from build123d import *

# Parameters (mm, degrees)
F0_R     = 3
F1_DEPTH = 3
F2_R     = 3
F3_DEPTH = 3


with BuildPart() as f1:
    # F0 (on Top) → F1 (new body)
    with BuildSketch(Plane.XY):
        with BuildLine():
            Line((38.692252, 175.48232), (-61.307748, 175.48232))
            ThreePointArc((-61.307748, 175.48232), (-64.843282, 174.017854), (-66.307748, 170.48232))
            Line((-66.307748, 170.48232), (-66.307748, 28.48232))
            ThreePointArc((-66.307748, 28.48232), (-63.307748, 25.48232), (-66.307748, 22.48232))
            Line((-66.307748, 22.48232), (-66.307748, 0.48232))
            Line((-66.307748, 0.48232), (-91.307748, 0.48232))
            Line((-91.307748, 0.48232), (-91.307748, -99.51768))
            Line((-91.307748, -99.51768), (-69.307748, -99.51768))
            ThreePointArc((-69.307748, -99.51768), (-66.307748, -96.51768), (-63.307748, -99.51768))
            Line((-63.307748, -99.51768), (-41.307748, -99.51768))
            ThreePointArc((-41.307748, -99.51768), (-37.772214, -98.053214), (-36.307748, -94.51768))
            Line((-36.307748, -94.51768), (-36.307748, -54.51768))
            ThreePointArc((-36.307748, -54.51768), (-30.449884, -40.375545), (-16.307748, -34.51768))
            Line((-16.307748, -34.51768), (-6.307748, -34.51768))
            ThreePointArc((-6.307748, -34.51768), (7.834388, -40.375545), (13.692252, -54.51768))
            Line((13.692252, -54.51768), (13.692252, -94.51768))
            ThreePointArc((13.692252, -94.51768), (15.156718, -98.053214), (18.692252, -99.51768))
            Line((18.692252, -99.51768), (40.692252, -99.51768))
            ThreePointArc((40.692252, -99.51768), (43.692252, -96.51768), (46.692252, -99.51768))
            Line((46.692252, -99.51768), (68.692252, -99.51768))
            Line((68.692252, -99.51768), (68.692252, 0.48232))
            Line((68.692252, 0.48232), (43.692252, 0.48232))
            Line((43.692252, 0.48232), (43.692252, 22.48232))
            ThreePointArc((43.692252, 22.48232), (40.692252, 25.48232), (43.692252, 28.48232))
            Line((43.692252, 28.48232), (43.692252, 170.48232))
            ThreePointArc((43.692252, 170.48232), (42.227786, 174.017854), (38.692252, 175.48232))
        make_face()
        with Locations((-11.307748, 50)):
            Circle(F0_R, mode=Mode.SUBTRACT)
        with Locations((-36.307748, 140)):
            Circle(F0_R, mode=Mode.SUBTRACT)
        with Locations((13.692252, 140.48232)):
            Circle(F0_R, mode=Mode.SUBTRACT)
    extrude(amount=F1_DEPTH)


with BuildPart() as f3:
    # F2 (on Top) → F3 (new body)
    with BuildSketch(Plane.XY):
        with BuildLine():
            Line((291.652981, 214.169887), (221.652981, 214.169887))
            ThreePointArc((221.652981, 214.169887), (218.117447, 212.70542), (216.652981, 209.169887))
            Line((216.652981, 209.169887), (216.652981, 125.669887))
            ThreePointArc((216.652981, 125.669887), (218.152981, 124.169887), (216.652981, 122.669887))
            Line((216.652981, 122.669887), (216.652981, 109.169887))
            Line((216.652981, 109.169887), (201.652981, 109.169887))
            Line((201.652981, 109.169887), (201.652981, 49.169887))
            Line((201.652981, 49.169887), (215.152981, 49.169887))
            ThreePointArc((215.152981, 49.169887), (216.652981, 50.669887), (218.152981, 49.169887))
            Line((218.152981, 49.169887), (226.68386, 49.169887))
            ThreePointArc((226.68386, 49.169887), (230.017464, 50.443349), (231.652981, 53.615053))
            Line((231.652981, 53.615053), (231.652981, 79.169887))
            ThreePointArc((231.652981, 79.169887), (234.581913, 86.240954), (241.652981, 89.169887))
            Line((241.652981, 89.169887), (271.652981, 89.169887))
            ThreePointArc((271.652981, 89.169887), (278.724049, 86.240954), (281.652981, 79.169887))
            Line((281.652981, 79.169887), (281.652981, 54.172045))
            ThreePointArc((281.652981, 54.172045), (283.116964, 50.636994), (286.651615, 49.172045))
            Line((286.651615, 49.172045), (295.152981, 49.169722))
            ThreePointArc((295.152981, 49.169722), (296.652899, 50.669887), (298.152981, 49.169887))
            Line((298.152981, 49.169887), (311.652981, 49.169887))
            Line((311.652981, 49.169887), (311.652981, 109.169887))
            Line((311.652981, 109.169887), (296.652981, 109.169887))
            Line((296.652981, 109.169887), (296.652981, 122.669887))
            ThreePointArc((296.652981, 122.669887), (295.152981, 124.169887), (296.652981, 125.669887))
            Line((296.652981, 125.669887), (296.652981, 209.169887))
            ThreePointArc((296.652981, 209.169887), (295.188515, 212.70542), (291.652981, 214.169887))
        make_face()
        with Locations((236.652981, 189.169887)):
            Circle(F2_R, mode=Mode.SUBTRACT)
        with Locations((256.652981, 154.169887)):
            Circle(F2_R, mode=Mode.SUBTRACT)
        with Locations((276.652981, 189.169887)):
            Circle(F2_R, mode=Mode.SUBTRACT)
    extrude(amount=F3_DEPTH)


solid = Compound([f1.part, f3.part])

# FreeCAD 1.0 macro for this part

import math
import FreeCAD as App
import Part
import Sketcher

doc = App.newDocument("Part")
body = doc.addObject("PartDesign::Body", "Body")

# Sketch on XY plane
sketch1 = doc.addObject("Sketcher::SketchObject", "Sketch")
body.addObject(sketch1)
sketch1.AttachmentSupport = (doc.XY_Plane, [""])
sketch1.MapMode = "FlatFace"
sketch1.addGeometry([
    Part.LineSegment(App.Vector(38.7, 175.5, 0), App.Vector(-61.3, 175.5, 0)),  # 0
    Part.ArcOfCircle(Part.Circle(App.Vector(-61.3, 170.5, 0), App.Vector(0, 0, 1), 5), math.radians(90), math.radians(180)),  # 1
    Part.LineSegment(App.Vector(-66.3, 170.5, 0), App.Vector(-66.3, 28.5, 0)),  # 2
    Part.ArcOfCircle(Part.Circle(App.Vector(-66.3, 25.5, 0), App.Vector(0, 0, 1), 3), math.radians(-90), math.radians(90)),  # 3
    Part.LineSegment(App.Vector(-66.3, 22.5, 0), App.Vector(-66.3, 0.5, 0)),  # 4
    Part.LineSegment(App.Vector(-66.3, 0.5, 0), App.Vector(-91.3, 0.5, 0)),  # 5
    Part.LineSegment(App.Vector(-91.3, 0.5, 0), App.Vector(-91.3, -99.5, 0)),  # 6
    Part.LineSegment(App.Vector(-91.3, -99.5, 0), App.Vector(-69.3, -99.5, 0)),  # 7
    Part.ArcOfCircle(Part.Circle(App.Vector(-66.3, -99.5, 0), App.Vector(0, 0, 1), 3), math.radians(0), math.radians(180)),  # 8
    Part.LineSegment(App.Vector(-63.3, -99.5, 0), App.Vector(-41.3, -99.5, 0)),  # 9
    Part.ArcOfCircle(Part.Circle(App.Vector(-41.3, -94.5, 0), App.Vector(0, 0, 1), 5), math.radians(-90), math.radians(0)),  # 10
    Part.LineSegment(App.Vector(-36.3, -94.5, 0), App.Vector(-36.3, -54.5, 0)),  # 11
    Part.ArcOfCircle(Part.Circle(App.Vector(-16.3, -54.5, 0), App.Vector(0, 0, 1), 20), math.radians(90), math.radians(180)),  # 12
    Part.LineSegment(App.Vector(-16.3, -34.5, 0), App.Vector(-6.3, -34.5, 0)),  # 13
    Part.ArcOfCircle(Part.Circle(App.Vector(-6.3, -54.5, 0), App.Vector(0, 0, 1), 20), math.radians(0), math.radians(90)),  # 14
    Part.LineSegment(App.Vector(13.7, -54.5, 0), App.Vector(13.7, -94.5, 0)),  # 15
    Part.ArcOfCircle(Part.Circle(App.Vector(18.7, -94.5, 0), App.Vector(0, 0, 1), 5), math.radians(180), math.radians(270)),  # 16
    Part.LineSegment(App.Vector(18.7, -99.5, 0), App.Vector(40.7, -99.5, 0)),  # 17
    Part.ArcOfCircle(Part.Circle(App.Vector(43.7, -99.5, 0), App.Vector(0, 0, 1), 3), math.radians(0), math.radians(180)),  # 18
    Part.LineSegment(App.Vector(46.7, -99.5, 0), App.Vector(68.7, -99.5, 0)),  # 19
    Part.LineSegment(App.Vector(68.7, -99.5, 0), App.Vector(68.7, 0.5, 0)),  # 20
    Part.LineSegment(App.Vector(68.7, 0.5, 0), App.Vector(43.7, 0.5, 0)),  # 21
    Part.LineSegment(App.Vector(43.7, 0.5, 0), App.Vector(43.7, 22.5, 0)),  # 22
    Part.ArcOfCircle(Part.Circle(App.Vector(43.7, 25.5, 0), App.Vector(0, 0, 1), 3), math.radians(90), math.radians(270)),  # 23
    Part.LineSegment(App.Vector(43.7, 28.5, 0), App.Vector(43.7, 170.5, 0)),  # 24
    Part.ArcOfCircle(Part.Circle(App.Vector(38.7, 170.5, 0), App.Vector(0, 0, 1), 5), math.radians(0), math.radians(90)),  # 25
    Part.Circle(App.Vector(-11.3, 50, 0), App.Vector(0, 0, 1), 3),  # 26
    Part.Circle(App.Vector(-36.3, 140, 0), App.Vector(0, 0, 1), 3),  # 27
    Part.Circle(App.Vector(13.7, 140.5, 0), App.Vector(0, 0, 1), 3),  # 28
], False)
sketch1.addConstraint([
    Sketcher.Constraint("Tangent", 0, 2, 1, 1),
    Sketcher.Constraint("Tangent", 1, 2, 2, 1),
    Sketcher.Constraint("Coincident", 2, 2, 3, 2),
    Sketcher.Constraint("Coincident", 3, 1, 4, 1),
    Sketcher.Constraint("Coincident", 4, 2, 5, 1),
    Sketcher.Constraint("Coincident", 5, 2, 6, 1),
    Sketcher.Constraint("Coincident", 6, 2, 7, 1),
    Sketcher.Constraint("Coincident", 7, 2, 8, 2),
    Sketcher.Constraint("Coincident", 8, 1, 9, 1),
    Sketcher.Constraint("Tangent", 9, 2, 10, 1),
    Sketcher.Constraint("Tangent", 10, 2, 11, 1),
    Sketcher.Constraint("Tangent", 11, 2, 12, 2),
    Sketcher.Constraint("Tangent", 12, 1, 13, 1),
    Sketcher.Constraint("Tangent", 13, 2, 14, 2),
    Sketcher.Constraint("Tangent", 14, 1, 15, 1),
    Sketcher.Constraint("Tangent", 15, 2, 16, 1),
    Sketcher.Constraint("Tangent", 16, 2, 17, 1),
    Sketcher.Constraint("Coincident", 17, 2, 18, 2),
    Sketcher.Constraint("Coincident", 18, 1, 19, 1),
    Sketcher.Constraint("Coincident", 19, 2, 20, 1),
    Sketcher.Constraint("Coincident", 20, 2, 21, 1),
    Sketcher.Constraint("Coincident", 21, 2, 22, 1),
    Sketcher.Constraint("Coincident", 22, 2, 23, 2),
    Sketcher.Constraint("Coincident", 23, 1, 24, 1),
    Sketcher.Constraint("Tangent", 24, 2, 25, 1),
    Sketcher.Constraint("Tangent", 25, 2, 0, 1),
    Sketcher.Constraint("Horizontal", 0),
    Sketcher.Constraint("Vertical", 2),
    Sketcher.Constraint("Vertical", 4),
    Sketcher.Constraint("Horizontal", 5),
    Sketcher.Constraint("Vertical", 6),
    Sketcher.Constraint("Horizontal", 7),
    Sketcher.Constraint("Horizontal", 9),
    Sketcher.Constraint("Vertical", 11),
    Sketcher.Constraint("Horizontal", 13),
    Sketcher.Constraint("Vertical", 15),
    Sketcher.Constraint("Horizontal", 17),
    Sketcher.Constraint("Horizontal", 19),
    Sketcher.Constraint("Vertical", 20),
    Sketcher.Constraint("Horizontal", 21),
    Sketcher.Constraint("Vertical", 22),
    Sketcher.Constraint("Vertical", 24),
    Sketcher.Constraint("Equal", 3, 8),
    Sketcher.Constraint("Equal", 1, 10),
    Sketcher.Constraint("Equal", 12, 14),
    Sketcher.Constraint("Equal", 10, 16),
    Sketcher.Constraint("Equal", 8, 18),
    Sketcher.Constraint("Equal", 18, 23),
    Sketcher.Constraint("Equal", 16, 25),
    Sketcher.Constraint("Equal", 23, 26),
    Sketcher.Constraint("Equal", 26, 27),
    Sketcher.Constraint("Equal", 27, 28),
    Sketcher.Constraint("Horizontal", 10, 3, 16, 3),
    Sketcher.Constraint("Horizontal", 8, 3, 18, 3),
    Sketcher.Constraint("Horizontal", 3, 3, 23, 3),
    Sketcher.Constraint("Horizontal", 18, 3, 6, 2),
    Sketcher.Constraint("Horizontal", 7, 2, 8, 1),
    Sketcher.Constraint("Horizontal", 17, 2, 18, 1),
    Sketcher.Constraint("Horizontal", 5, 2, 20, 2),
    Sketcher.Constraint("Vertical", 3, 3, 8, 3),
    Sketcher.Constraint("Vertical", 18, 3, 23, 3),
    Sketcher.Constraint("Vertical", 8, 3, 1, 2),
    Sketcher.Constraint("Vertical", 2, 2, 3, 1),
    Sketcher.Constraint("Vertical", 27, 3, 10, 2),
    Sketcher.Constraint("Vertical", 28, 3, 14, 1),
    Sketcher.Constraint("Vertical", 23, 3, 21, 2),
    Sketcher.Constraint("Vertical", 22, 2, 23, 1),
    Sketcher.Constraint("Equal", 7, 9),
    Sketcher.Constraint("Equal", 9, 17),
    Sketcher.Constraint("Equal", 17, 19),
    Sketcher.Constraint("Equal", 19, 4),
    Sketcher.Constraint("Equal", 0, 6),
    Sketcher.Constraint("Diameter", 26, 6.0),
    Sketcher.Constraint("Radius", 1, 5.0),
    Sketcher.Constraint("Radius", 12, 20.0),
    Sketcher.Constraint("DistanceX", 0, 2, 0, 1, 100.0),
    Sketcher.Constraint("DistanceX", 5, 2, 5, 1, 25.0),
    Sketcher.Constraint("DistanceY", 2, 2, 2, 1, 142.0),
    Sketcher.Constraint("DistanceY", 11, 1, 11, 2, 40.0),
    Sketcher.Constraint("DistanceY", -1, 1, 26, 3, 50.0),
    Sketcher.Constraint("DistanceY", -1, 1, 27, 3, 140.0),
    Sketcher.Constraint("DistanceX", 3, 3, 26, 3, 55.0),
    Sketcher.Constraint("DistanceY", 28, 3, 25, 3, 30.0),
    Sketcher.Constraint("DistanceX", 1, 3, -1, 1, 61.307748),
    Sketcher.Constraint("DistanceY", -1, 1, 1, 3, 170.48232),
])
pad1 = doc.addObject("PartDesign::Pad", "Pad")
body.addObject(pad1)
pad1.Profile = sketch1
pad1.Length = 3
body2 = doc.addObject("PartDesign::Body", "Body001")

# Sketch on XY plane
sketch2 = doc.addObject("Sketcher::SketchObject", "Sketch001")
body2.addObject(sketch2)
sketch2.AttachmentSupport = (doc.getObject("XY_Plane001"), [""])
sketch2.MapMode = "FlatFace"
sketch2.addGeometry([
    Part.LineSegment(App.Vector(291.7, 214.2, 0), App.Vector(221.7, 214.2, 0)),  # 0
    Part.ArcOfCircle(Part.Circle(App.Vector(221.7, 209.2, 0), App.Vector(0, 0, 1), 5), math.radians(90), math.radians(180)),  # 1
    Part.LineSegment(App.Vector(216.7, 209.2, 0), App.Vector(216.7, 125.7, 0)),  # 2
    Part.ArcOfCircle(Part.Circle(App.Vector(216.7, 124.2, 0), App.Vector(0, 0, 1), 1.5), math.radians(-90), math.radians(90)),  # 3
    Part.LineSegment(App.Vector(216.7, 122.7, 0), App.Vector(216.7, 109.2, 0)),  # 4
    Part.LineSegment(App.Vector(216.7, 109.2, 0), App.Vector(201.7, 109.2, 0)),  # 5
    Part.LineSegment(App.Vector(201.7, 109.2, 0), App.Vector(201.7, 49.2, 0)),  # 6
    Part.LineSegment(App.Vector(201.7, 49.2, 0), App.Vector(215.2, 49.2, 0)),  # 7
    Part.ArcOfCircle(Part.Circle(App.Vector(216.7, 49.2, 0), App.Vector(0, 0, 1), 1.5), math.radians(0), math.radians(180)),  # 8
    Part.LineSegment(App.Vector(218.2, 49.2, 0), App.Vector(226.7, 49.2, 0)),  # 9
    Part.ArcOfCircle(Part.Circle(App.Vector(226.7, 54.2, 0), App.Vector(0, 0, 1), 5), math.radians(-90), math.radians(-6)),  # 10
    Part.LineSegment(App.Vector(231.7, 53.6, 0), App.Vector(231.7, 79.2, 0)),  # 11
    Part.ArcOfCircle(Part.Circle(App.Vector(241.7, 79.2, 0), App.Vector(0, 0, 1), 10), math.radians(90), math.radians(180)),  # 12
    Part.LineSegment(App.Vector(241.7, 89.2, 0), App.Vector(271.7, 89.2, 0)),  # 13
    Part.ArcOfCircle(Part.Circle(App.Vector(271.7, 79.2, 0), App.Vector(0, 0, 1), 10), math.radians(0), math.radians(90)),  # 14
    Part.LineSegment(App.Vector(281.7, 79.2, 0), App.Vector(281.7, 54.2, 0)),  # 15
    Part.ArcOfCircle(Part.Circle(App.Vector(286.7, 54.2, 0), App.Vector(0, 0, 1), 5), math.radians(180), math.radians(270)),  # 16
    Part.LineSegment(App.Vector(286.7, 49.2, 0), App.Vector(295.2, 49.2, 0)),  # 17
    Part.ArcOfCircle(Part.Circle(App.Vector(296.7, 49.2, 0), App.Vector(0, 0, 1), 1.5), math.radians(0), math.radians(180)),  # 18
    Part.LineSegment(App.Vector(298.2, 49.2, 0), App.Vector(311.7, 49.2, 0)),  # 19
    Part.LineSegment(App.Vector(311.7, 49.2, 0), App.Vector(311.7, 109.2, 0)),  # 20
    Part.LineSegment(App.Vector(311.7, 109.2, 0), App.Vector(296.7, 109.2, 0)),  # 21
    Part.LineSegment(App.Vector(296.7, 109.2, 0), App.Vector(296.7, 122.7, 0)),  # 22
    Part.ArcOfCircle(Part.Circle(App.Vector(296.7, 124.2, 0), App.Vector(0, 0, 1), 1.5), math.radians(90), math.radians(270)),  # 23
    Part.LineSegment(App.Vector(296.7, 125.7, 0), App.Vector(296.7, 209.2, 0)),  # 24
    Part.ArcOfCircle(Part.Circle(App.Vector(291.7, 209.2, 0), App.Vector(0, 0, 1), 5), math.radians(0), math.radians(90)),  # 25
    Part.Circle(App.Vector(256.7, 154.2, 0), App.Vector(0, 0, 1), 3),  # 26
    Part.Circle(App.Vector(236.7, 189.2, 0), App.Vector(0, 0, 1), 3),  # 27
    Part.Circle(App.Vector(276.7, 189.2, 0), App.Vector(0, 0, 1), 3),  # 28
], False)
sketch2.addConstraint([
    Sketcher.Constraint("Tangent", 0, 2, 1, 1),
    Sketcher.Constraint("Tangent", 1, 2, 2, 1),
    Sketcher.Constraint("Coincident", 2, 2, 3, 2),
    Sketcher.Constraint("Coincident", 3, 1, 4, 1),
    Sketcher.Constraint("Coincident", 4, 2, 5, 1),
    Sketcher.Constraint("Coincident", 5, 2, 6, 1),
    Sketcher.Constraint("Coincident", 6, 2, 7, 1),
    Sketcher.Constraint("Coincident", 7, 2, 8, 2),
    Sketcher.Constraint("Coincident", 8, 1, 9, 1),
    Sketcher.Constraint("Tangent", 9, 2, 10, 1),
    Sketcher.Constraint("Coincident", 10, 2, 11, 1),
    Sketcher.Constraint("Tangent", 11, 2, 12, 2),
    Sketcher.Constraint("Tangent", 12, 1, 13, 1),
    Sketcher.Constraint("Tangent", 13, 2, 14, 2),
    Sketcher.Constraint("Tangent", 14, 1, 15, 1),
    Sketcher.Constraint("Tangent", 15, 2, 16, 1),
    Sketcher.Constraint("Tangent", 16, 2, 17, 1),
    Sketcher.Constraint("Coincident", 17, 2, 18, 2),
    Sketcher.Constraint("Coincident", 18, 1, 19, 1),
    Sketcher.Constraint("Coincident", 19, 2, 20, 1),
    Sketcher.Constraint("Coincident", 20, 2, 21, 1),
    Sketcher.Constraint("Coincident", 21, 2, 22, 1),
    Sketcher.Constraint("Coincident", 22, 2, 23, 2),
    Sketcher.Constraint("Coincident", 23, 1, 24, 1),
    Sketcher.Constraint("Tangent", 24, 2, 25, 1),
    Sketcher.Constraint("Tangent", 25, 2, 0, 1),
    Sketcher.Constraint("Horizontal", 0),
    Sketcher.Constraint("Vertical", 2),
    Sketcher.Constraint("Vertical", 4),
    Sketcher.Constraint("Horizontal", 5),
    Sketcher.Constraint("Vertical", 6),
    Sketcher.Constraint("Horizontal", 7),
    Sketcher.Constraint("Horizontal", 9),
    Sketcher.Constraint("Vertical", 11),
    Sketcher.Constraint("Horizontal", 13),
    Sketcher.Constraint("Vertical", 15),
    Sketcher.Constraint("Horizontal", 19),
    Sketcher.Constraint("Vertical", 20),
    Sketcher.Constraint("Horizontal", 21),
    Sketcher.Constraint("Vertical", 22),
    Sketcher.Constraint("Vertical", 24),
    Sketcher.Constraint("Equal", 3, 8),
    Sketcher.Constraint("Equal", 1, 10),
    Sketcher.Constraint("Equal", 12, 14),
    Sketcher.Constraint("Equal", 10, 16),
    Sketcher.Constraint("Equal", 8, 18),
    Sketcher.Constraint("Equal", 18, 23),
    Sketcher.Constraint("Equal", 16, 25),
    Sketcher.Constraint("Equal", 26, 27),
    Sketcher.Constraint("Equal", 27, 28),
    Sketcher.Constraint("Horizontal", 8, 3, 18, 3),
    Sketcher.Constraint("Horizontal", 3, 3, 23, 3),
    Sketcher.Constraint("Horizontal", 27, 3, 28, 3),
    Sketcher.Constraint("Horizontal", 18, 3, 6, 2),
    Sketcher.Constraint("Horizontal", 7, 2, 8, 1),
    Sketcher.Constraint("Horizontal", 9, 2, 18, 1),
    Sketcher.Constraint("Horizontal", 5, 2, 20, 2),
    Sketcher.Constraint("Vertical", 3, 3, 8, 3),
    Sketcher.Constraint("Vertical", 18, 3, 23, 3),
    Sketcher.Constraint("Vertical", 8, 3, 1, 2),
    Sketcher.Constraint("Vertical", 2, 2, 3, 1),
    Sketcher.Constraint("Vertical", 23, 3, 21, 2),
    Sketcher.Constraint("Vertical", 22, 2, 23, 1),
    Sketcher.Constraint("Equal", 7, 19),
    Sketcher.Constraint("Equal", 19, 4),
    Sketcher.Constraint("Diameter", 26, 6.0),
    Sketcher.Constraint("Radius", 1, 5.000001),
    Sketcher.Constraint("Radius", 12, 10.000001),
    Sketcher.Constraint("Radius", 3, 1.5),
    Sketcher.Constraint("DistanceX", 0, 2, 0, 1, 70.0),
    Sketcher.Constraint("DistanceX", 5, 2, 5, 1, 15.0),
    Sketcher.Constraint("DistanceX", 13, 1, 13, 2, 30.0),
    Sketcher.Constraint("DistanceY", 6, 2, 6, 1, 60.0),
    Sketcher.Constraint("DistanceY", 2, 2, 2, 1, 83.5),
    Sketcher.Constraint("DistanceY", 10, 3, 12, 3, 24.999998),
    Sketcher.Constraint("DistanceX", 8, 3, 12, 3, 25.000001),
    Sketcher.Constraint("DistanceX", 3, 3, 26, 3, 40.0),
    Sketcher.Constraint("DistanceY", 3, 3, 26, 3, 30.0),
    Sketcher.Constraint("DistanceX", 1, 3, 27, 3, 14.999999),
    Sketcher.Constraint("DistanceY", 27, 3, 1, 3, 19.999999),
    Sketcher.Constraint("DistanceX", 28, 3, 25, 3, 14.999999),
    Sketcher.Constraint("DistanceX", 9, 1, 9, 2, 8.530879),
    Sketcher.Constraint("DistanceY", 15, 2, 15, 1, 24.997842),
    Sketcher.Constraint("DistanceX", -1, 1, 3, 3, 216.652981),
    Sketcher.Constraint("Distance", 17, 8.501366),
    Sketcher.Constraint("DistanceY", -1, 1, 1, 3, 209.169886),
])
pad2 = doc.addObject("PartDesign::Pad", "Pad001")
body2.addObject(pad2)
pad2.Profile = sketch2
pad2.Length = 3

doc.recompute()
